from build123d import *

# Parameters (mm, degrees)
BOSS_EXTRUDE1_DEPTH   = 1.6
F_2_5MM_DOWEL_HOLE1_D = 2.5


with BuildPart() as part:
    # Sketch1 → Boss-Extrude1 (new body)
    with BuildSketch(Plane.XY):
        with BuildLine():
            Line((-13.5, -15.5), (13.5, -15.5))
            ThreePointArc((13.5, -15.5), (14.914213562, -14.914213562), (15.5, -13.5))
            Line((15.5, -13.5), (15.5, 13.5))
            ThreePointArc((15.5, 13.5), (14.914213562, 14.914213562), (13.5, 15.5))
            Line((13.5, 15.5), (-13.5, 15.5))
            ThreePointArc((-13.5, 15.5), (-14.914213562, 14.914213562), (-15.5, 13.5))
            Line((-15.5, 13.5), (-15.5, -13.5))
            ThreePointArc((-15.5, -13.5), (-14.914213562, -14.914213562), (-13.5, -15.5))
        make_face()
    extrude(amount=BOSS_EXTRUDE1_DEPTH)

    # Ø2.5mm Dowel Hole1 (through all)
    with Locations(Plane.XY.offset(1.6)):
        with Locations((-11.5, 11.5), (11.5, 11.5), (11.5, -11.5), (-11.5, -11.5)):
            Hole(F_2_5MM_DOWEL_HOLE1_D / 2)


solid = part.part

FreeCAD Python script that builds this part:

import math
import FreeCAD as App
import Part
import Sketcher

doc = App.newDocument("Part")
body = doc.addObject("PartDesign::Body", "Body")

# Sketch on XY plane
sketch1 = body.newObject("Sketcher::SketchObject", "Sketch")
sketch1.AttachmentSupport = (doc.getObject("XY_Plane"), [""])
sketch1.MapMode = "FlatFace"
sketch1.addGeometry([
    Part.LineSegment(App.Vector(-13.5, -15.5, 0), App.Vector(13.5, -15.5, 0)),  # 0
    Part.ArcOfCircle(Part.Circle(App.Vector(13.5, -13.5, 0), App.Vector(0, 0, 1), 2), math.radians(-90), math.radians(0)),  # 1
    Part.LineSegment(App.Vector(15.5, -13.5, 0), App.Vector(15.5, 13.5, 0)),  # 2
    Part.ArcOfCircle(Part.Circle(App.Vector(13.5, 13.5, 0), App.Vector(0, 0, 1), 2), math.radians(0), math.radians(90)),  # 3
    Part.LineSegment(App.Vector(13.5, 15.5, 0), App.Vector(-13.5, 15.5, 0)),  # 4
    Part.ArcOfCircle(Part.Circle(App.Vector(-13.5, 13.5, 0), App.Vector(0, 0, 1), 2), math.radians(90), math.radians(180)),  # 5
    Part.LineSegment(App.Vector(-15.5, 13.5, 0), App.Vector(-15.5, -13.5, 0)),  # 6
    Part.ArcOfCircle(Part.Circle(App.Vector(-13.5, -13.5, 0), App.Vector(0, 0, 1), 2), math.radians(-180), math.radians(-90)),  # 7
], False)
sketch1.addConstraint([
    Sketcher.Constraint("Tangent", 0, 2, 1, 1),
    Sketcher.Constraint("Tangent", 1, 2, 2, 1),
    Sketcher.Constraint("Tangent", 2, 2, 3, 1),
    Sketcher.Constraint("Tangent", 3, 2, 4, 1),
    Sketcher.Constraint("Tangent", 4, 2, 5, 1),
    Sketcher.Constraint("Tangent", 5, 2, 6, 1),
    Sketcher.Constraint("Tangent", 6, 2, 7, 1),
    Sketcher.Constraint("Tangent", 7, 2, 0, 1),
    Sketcher.Constraint("Horizontal", 0),
    Sketcher.Constraint("Vertical", 2),
    Sketcher.Constraint("Horizontal", 4),
    Sketcher.Constraint("Vertical", 6),
    Sketcher.Constraint("Equal", 1, 3),
    Sketcher.Constraint("Equal", 3, 5),
    Sketcher.Constraint("Equal", 5, 7),
    Sketcher.Constraint("Symmetric", 1, 3, 5, 3, -1, 1),
    Sketcher.Constraint("Equal", 4, 2),
    Sketcher.Constraint("Radius", 1, 2.0),
    Sketcher.Constraint("DistanceX", 0, 1, 0, 2, 27.0),
])
pad1 = body.newObject("PartDesign::Pad", "Pad")
pad1.Profile = sketch1
pad1.Length = 1.6

# Sketch on XY plane
sketch2 = body.newObject("Sketcher::SketchObject", "Sketch001")
sketch2.AttachmentSupport = (doc.getObject("XY_Plane"), [""])
sketch2.MapMode = "FlatFace"
sketch2.AttachmentOffset = App.Placement(App.Vector(0, 0, 1.6), App.Rotation())
sketch2.addGeometry([
    Part.Circle(App.Vector(-11.5, 11.5, 0), App.Vector(0, 0, 1), 1.2),
    Part.Circle(App.Vector(11.5, 11.5, 0), App.Vector(0, 0, 1), 1.2),
    Part.Circle(App.Vector(11.5, -11.5, 0), App.Vector(0, 0, 1), 1.2),
    Part.Circle(App.Vector(-11.5, -11.5, 0), App.Vector(0, 0, 1), 1.2),
], False)
sketch2.addConstraint([
    Sketcher.Constraint("Equal", 0, 1),
    Sketcher.Constraint("Equal", 1, 2),
    Sketcher.Constraint("Equal", 2, 3),
    Sketcher.Constraint("Symmetric", 0, 3, 2, 3, -1, 1),
    Sketcher.Constraint("Symmetric", 1, 3, 3, 3, -1, 1),
    Sketcher.Constraint("Symmetric", 0, 3, 1, 3, -2),
    Sketcher.Constraint("Diameter", 0, 2.5),
    Sketcher.Constraint("DistanceX", 0, 3, 1, 3, 23.0),
    Sketcher.Constraint("DistanceY", 2, 3, 1, 3, 23.0),
])
doc.recompute()
hole = body.newObject("PartDesign::Hole", "Hole")
hole.Profile = sketch2
hole.ThreadType = "None"
hole.Diameter = 2.5
hole.DepthType = "ThroughAll"

doc.recompute()
